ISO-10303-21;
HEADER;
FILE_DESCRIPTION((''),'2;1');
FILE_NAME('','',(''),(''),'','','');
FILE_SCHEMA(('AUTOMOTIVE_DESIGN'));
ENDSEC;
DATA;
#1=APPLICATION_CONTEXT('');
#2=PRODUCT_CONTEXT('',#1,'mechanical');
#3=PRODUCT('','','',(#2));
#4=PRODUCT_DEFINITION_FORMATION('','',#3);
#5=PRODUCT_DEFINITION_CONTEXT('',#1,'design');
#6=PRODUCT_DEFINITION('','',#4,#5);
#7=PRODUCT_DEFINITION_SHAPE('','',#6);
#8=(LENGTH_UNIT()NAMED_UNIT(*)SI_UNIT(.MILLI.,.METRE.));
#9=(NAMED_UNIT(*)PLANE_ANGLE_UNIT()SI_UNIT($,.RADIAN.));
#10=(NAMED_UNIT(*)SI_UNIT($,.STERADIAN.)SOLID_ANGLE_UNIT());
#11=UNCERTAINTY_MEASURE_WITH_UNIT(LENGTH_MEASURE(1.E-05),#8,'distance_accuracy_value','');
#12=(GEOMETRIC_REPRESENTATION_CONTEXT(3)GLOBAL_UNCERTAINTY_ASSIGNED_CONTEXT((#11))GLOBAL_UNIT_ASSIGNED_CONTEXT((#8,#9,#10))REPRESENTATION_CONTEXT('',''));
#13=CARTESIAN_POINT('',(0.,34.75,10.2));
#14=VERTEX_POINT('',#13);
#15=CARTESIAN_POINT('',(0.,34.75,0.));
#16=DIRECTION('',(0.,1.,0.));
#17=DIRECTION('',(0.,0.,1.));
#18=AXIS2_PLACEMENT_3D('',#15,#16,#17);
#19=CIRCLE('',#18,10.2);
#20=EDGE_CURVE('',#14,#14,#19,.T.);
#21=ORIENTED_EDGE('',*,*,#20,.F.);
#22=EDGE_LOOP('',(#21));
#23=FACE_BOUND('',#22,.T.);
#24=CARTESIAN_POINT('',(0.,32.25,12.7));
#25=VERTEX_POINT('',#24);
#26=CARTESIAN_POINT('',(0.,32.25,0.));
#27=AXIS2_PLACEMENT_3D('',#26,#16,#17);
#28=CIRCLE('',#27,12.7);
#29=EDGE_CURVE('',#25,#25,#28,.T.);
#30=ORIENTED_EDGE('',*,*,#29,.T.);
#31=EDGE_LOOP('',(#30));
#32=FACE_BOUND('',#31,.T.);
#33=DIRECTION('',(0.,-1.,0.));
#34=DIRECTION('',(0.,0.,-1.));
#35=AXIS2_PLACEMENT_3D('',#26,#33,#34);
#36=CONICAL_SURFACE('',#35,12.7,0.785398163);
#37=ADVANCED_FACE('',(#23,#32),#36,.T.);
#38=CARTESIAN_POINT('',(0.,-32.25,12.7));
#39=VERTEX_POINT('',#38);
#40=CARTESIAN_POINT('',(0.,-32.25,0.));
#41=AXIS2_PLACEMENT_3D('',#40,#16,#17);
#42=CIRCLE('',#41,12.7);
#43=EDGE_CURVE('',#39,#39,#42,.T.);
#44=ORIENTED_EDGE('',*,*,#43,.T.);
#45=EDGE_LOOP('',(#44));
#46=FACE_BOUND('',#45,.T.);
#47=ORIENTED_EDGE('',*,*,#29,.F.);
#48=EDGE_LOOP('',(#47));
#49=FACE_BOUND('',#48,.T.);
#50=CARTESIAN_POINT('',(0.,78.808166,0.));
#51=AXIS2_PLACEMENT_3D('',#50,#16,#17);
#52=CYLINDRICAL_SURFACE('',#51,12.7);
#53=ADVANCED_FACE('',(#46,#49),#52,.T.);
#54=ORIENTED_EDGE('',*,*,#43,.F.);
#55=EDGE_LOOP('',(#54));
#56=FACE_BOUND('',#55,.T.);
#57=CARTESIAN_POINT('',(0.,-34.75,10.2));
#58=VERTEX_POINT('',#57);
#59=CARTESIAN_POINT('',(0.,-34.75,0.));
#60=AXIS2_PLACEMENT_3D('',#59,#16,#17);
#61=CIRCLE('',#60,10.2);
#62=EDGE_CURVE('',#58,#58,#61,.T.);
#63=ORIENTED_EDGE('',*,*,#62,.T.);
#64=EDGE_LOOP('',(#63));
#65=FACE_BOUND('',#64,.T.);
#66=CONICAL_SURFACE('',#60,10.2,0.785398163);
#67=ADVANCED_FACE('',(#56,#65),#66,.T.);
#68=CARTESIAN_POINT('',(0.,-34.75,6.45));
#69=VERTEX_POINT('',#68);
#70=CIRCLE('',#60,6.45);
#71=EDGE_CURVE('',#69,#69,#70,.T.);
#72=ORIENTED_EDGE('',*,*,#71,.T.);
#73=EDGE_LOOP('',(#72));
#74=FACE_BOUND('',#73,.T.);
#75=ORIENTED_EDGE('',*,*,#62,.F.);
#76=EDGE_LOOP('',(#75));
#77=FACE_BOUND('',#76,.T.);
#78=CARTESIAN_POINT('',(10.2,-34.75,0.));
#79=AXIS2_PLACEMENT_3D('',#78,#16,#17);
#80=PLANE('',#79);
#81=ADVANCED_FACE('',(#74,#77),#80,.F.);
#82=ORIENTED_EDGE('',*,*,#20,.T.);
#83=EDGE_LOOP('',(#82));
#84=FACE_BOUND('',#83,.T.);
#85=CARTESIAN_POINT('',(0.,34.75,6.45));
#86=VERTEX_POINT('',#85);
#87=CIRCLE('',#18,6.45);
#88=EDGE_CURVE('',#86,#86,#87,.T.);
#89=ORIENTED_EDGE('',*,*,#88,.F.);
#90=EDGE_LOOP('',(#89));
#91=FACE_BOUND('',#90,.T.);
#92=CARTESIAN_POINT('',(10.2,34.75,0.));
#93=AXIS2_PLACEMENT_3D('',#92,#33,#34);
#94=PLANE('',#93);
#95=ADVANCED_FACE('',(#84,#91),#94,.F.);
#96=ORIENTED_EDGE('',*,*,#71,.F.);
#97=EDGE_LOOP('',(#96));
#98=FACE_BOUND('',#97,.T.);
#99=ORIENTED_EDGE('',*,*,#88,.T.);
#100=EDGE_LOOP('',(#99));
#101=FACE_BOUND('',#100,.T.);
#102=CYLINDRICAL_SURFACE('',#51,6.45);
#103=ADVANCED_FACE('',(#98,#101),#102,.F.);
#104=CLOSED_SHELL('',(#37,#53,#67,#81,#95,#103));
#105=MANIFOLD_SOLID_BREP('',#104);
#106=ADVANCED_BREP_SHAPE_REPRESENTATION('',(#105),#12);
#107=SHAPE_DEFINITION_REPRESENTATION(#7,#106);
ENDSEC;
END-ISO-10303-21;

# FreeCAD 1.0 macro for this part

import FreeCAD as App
import Part
import Sketcher

V = App.Vector

doc = App.newDocument("Part")
params = doc.addObject("Spreadsheet::Sheet", "Params")
for row, (alias, value) in enumerate([
    ("sketch1_height", "64.5 mm"),
    ("sketch1_height2", "69.5 mm"),
    ("sketch1_width", "3.75 mm"),
    ("revolution_angle", "360 deg"),
], start=1):
    params.set(f"A{row}", alias)
    params.set(f"B{row}", "=" + value)
    params.setAlias(f"B{row}", alias)

body = doc.addObject("PartDesign::Body", "Body")

sketch1 = doc.addObject("Sketcher::SketchObject", "Sketch")
body.addObject(sketch1)
sketch1.AttachmentSupport = (doc.XY_Plane, [""])
sketch1.MapMode = "FlatFace"
sketch1.addGeometry(Part.LineSegment(V(12.7, -32.2, 0), V(12.7, 32.2, 0)), False)
sketch1.addGeometry(Part.LineSegment(V(12.7, 32.2, 0), V(10.2, 34.8, 0)), False)
sketch1.addGeometry(Part.LineSegment(V(10.2, 34.8, 0), V(6.5, 34.8, 0)), False)
sketch1.addGeometry(Part.LineSegment(V(6.5, 34.8, 0), V(6.5, -34.8, 0)), False)
sketch1.addGeometry(Part.LineSegment(V(6.5, -34.8, 0), V(10.2, -34.8, 0)), False)
sketch1.addGeometry(Part.LineSegment(V(10.2, -34.8, 0), V(12.7, -32.2, 0)), False)
sketch1.addConstraint(Sketcher.Constraint("Coincident", 0, 2, 1, 1))
sketch1.addConstraint(Sketcher.Constraint("Coincident", 1, 2, 2, 1))
sketch1.addConstraint(Sketcher.Constraint("Coincident", 2, 2, 3, 1))
sketch1.addConstraint(Sketcher.Constraint("Coincident", 3, 2, 4, 1))
sketch1.addConstraint(Sketcher.Constraint("Coincident", 4, 2, 5, 1))
sketch1.addConstraint(Sketcher.Constraint("Coincident", 5, 2, 0, 1))
sketch1.addConstraint(Sketcher.Constraint("Vertical", 0))
sketch1.addConstraint(Sketcher.Constraint("Horizontal", 2))
sketch1.addConstraint(Sketcher.Constraint("Vertical", 3))
sketch1.addConstraint(Sketcher.Constraint("Horizontal", 4))
sketch1.addConstraint(Sketcher.Constraint("Symmetric", 1, 2, 4, 2, -1))
sketch1.addConstraint(Sketcher.Constraint("Perpendicular", 1, 5))
sketch1.addConstraint(Sketcher.Constraint("Equal", 1, 5))
sketch1.addConstraint(Sketcher.Constraint("DistanceY", 0, 1, 0, 2, 64.5))
sketch1.addConstraint(Sketcher.Constraint("DistanceY", 3, 2, 3, 1, 69.5))
sketch1.addConstraint(Sketcher.Constraint("DistanceX", 2, 2, 2, 1, 3.75))
sketch1.addConstraint(Sketcher.Constraint("DistanceX", -1, 1, 0, 2, 12.7))
sketch1.setExpression("Constraints[13]", "Params.sketch1_height")
sketch1.setExpression("Constraints[14]", "Params.sketch1_height2")
sketch1.setExpression("Constraints[15]", "Params.sketch1_width")
revolution = doc.addObject("PartDesign::Revolution", "Revolution")
body.addObject(revolution)
revolution.Profile = sketch1
revolution.ReferenceAxis = (sketch1, ["V_Axis"])
revolution.setExpression("Angle", "Params.revolution_angle")

doc.recompute()
